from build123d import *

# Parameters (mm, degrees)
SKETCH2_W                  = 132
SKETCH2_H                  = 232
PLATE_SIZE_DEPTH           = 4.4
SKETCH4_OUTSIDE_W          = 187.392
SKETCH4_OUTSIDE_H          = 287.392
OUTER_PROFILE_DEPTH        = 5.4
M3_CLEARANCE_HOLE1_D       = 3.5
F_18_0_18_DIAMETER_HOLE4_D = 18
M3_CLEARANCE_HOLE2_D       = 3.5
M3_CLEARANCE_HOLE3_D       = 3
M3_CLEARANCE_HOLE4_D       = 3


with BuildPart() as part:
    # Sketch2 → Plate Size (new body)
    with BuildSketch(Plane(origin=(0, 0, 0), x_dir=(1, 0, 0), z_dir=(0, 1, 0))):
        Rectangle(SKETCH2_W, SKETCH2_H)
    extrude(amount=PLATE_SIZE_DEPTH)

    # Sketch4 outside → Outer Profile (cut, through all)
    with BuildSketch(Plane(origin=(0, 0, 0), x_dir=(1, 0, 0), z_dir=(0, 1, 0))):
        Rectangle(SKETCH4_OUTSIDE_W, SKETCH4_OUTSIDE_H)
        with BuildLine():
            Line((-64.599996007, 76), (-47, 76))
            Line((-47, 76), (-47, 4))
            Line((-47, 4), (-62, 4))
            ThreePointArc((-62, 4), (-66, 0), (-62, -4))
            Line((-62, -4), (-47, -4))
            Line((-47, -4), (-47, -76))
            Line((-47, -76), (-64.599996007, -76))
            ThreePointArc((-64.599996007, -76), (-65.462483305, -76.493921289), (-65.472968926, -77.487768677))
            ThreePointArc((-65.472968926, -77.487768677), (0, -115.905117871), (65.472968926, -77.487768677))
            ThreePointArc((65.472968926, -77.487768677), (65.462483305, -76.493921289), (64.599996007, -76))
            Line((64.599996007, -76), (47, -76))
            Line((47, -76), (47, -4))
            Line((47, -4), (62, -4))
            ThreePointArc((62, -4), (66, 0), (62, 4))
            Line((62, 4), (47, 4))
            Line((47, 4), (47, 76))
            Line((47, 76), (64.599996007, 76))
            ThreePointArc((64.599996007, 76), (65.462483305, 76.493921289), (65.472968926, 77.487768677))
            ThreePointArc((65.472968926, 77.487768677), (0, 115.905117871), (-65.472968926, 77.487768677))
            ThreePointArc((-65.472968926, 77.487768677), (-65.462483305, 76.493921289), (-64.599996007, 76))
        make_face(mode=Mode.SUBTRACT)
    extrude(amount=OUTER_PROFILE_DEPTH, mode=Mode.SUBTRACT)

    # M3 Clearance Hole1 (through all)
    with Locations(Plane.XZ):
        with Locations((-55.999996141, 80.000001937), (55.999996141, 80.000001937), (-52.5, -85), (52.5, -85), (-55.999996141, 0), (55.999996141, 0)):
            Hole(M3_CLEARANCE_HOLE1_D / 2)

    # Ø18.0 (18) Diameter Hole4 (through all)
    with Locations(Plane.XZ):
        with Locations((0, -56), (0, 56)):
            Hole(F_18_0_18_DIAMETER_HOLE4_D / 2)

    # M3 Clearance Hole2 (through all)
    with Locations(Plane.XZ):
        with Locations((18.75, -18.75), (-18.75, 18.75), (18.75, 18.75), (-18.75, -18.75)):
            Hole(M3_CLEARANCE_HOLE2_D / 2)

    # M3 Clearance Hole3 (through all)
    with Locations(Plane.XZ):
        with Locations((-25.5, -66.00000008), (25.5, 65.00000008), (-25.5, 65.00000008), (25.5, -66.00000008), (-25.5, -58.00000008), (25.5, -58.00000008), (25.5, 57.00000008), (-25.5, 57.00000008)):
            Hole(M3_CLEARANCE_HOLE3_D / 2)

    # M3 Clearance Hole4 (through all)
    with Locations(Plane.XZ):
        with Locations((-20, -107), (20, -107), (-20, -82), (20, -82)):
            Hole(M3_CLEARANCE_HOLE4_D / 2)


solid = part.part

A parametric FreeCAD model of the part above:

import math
import FreeCAD as App
import Part
import Sketcher
from FreeCAD import Vector
Q = App.Units.Quantity


def add_polygon(sketch, points):
    """Adds a closed chain of lines whose ends are joined by coincident constraints."""
    first, n = sketch.GeometryCount, len(points)
    for a, b in zip(points, points[1:] + points[:1]):
        sketch.addGeometry(Part.LineSegment(App.Vector(*a, 0), App.Vector(*b, 0)), False)
    for i in range(n):
        sketch.addConstraint(Sketcher.Constraint("Coincident", first + i, 2, first + (i + 1) % n, 1))

doc = App.newDocument("Part")
body = doc.addObject("PartDesign::Body", "Body")

sketch1 = doc.addObject("Sketcher::SketchObject", "Sketch")
body.addObject(sketch1)
sketch1.AttachmentSupport = (doc.XZ_Plane, [""])
sketch1.MapMode = "FlatFace"
add_polygon(sketch1, [(-66, -116), (-66, 116), (66, 116), (66, -116)])
sketch1.addConstraint(Sketcher.Constraint("Vertical", 0))
sketch1.addConstraint(Sketcher.Constraint("Horizontal", 1))
sketch1.addConstraint(Sketcher.Constraint("Vertical", 2))
sketch1.addConstraint(Sketcher.Constraint("Horizontal", 3))
sketch1.addConstraint(Sketcher.Constraint("Symmetric", 0, 2, 2, 2, -1, 1))
sketch1.addConstraint(Sketcher.Constraint("DistanceX", 1, 1, 1, 2, Q("132 mm")))
sketch1.addConstraint(Sketcher.Constraint("DistanceY", 0, 1, 0, 2, Q("232 mm")))
pad1 = doc.addObject("PartDesign::Pad", "Pad")
body.addObject(pad1)
pad1.Profile = sketch1
pad1.Length = 4.4
pad1.Reversed = True

sketch2 = doc.addObject("Sketcher::SketchObject", "Sketch001")
body.addObject(sketch2)
sketch2.AttachmentSupport = (doc.XZ_Plane, [""])
sketch2.MapMode = "FlatFace"
add_polygon(sketch2, [(-93.7, -143.7), (-93.7, 143.7), (93.7, 143.7), (93.7, -143.7)])
sketch2.addGeometry(Part.LineSegment(Vector(-47, -76, 0), Vector(-64.6, -76, 0)), False)
sketch2.addGeometry(Part.ArcOfCircle(Part.Circle(Vector(-64.6, -77, 0), Vector(0, 0, 1), 1), math.radians(90), math.radians(209)), False)
sketch2.addGeometry(Part.ArcOfCircle(Part.Circle(Vector(0, -40.9, 0), Vector(0, 0, 1), 75), math.radians(-151), math.radians(-29)), False)
sketch2.addGeometry(Part.ArcOfCircle(Part.Circle(Vector(64.6, -77, 0), Vector(0, 0, 1), 1), math.radians(-29), math.radians(90)), False)
sketch2.addGeometry(Part.LineSegment(Vector(64.6, -76, 0), Vector(47, -76, 0)), False)
sketch2.addGeometry(Part.LineSegment(Vector(47, -76, 0), Vector(47, -4, 0)), False)
sketch2.addGeometry(Part.LineSegment(Vector(47, -4, 0), Vector(62, -4, 0)), False)
sketch2.addGeometry(Part.ArcOfCircle(Part.Circle(Vector(62, 0, 0), Vector(0, 0, 1), 4), math.radians(-90), math.radians(90)), False)
sketch2.addGeometry(Part.LineSegment(Vector(62, 4, 0), Vector(47, 4, 0)), False)
sketch2.addGeometry(Part.LineSegment(Vector(47, 4, 0), Vector(47, 76, 0)), False)
sketch2.addGeometry(Part.LineSegment(Vector(47, 76, 0), Vector(64.6, 76, 0)), False)
sketch2.addGeometry(Part.ArcOfCircle(Part.Circle(Vector(64.6, 77, 0), Vector(0, 0, 1), 1), math.radians(-90), math.radians(29)), False)
sketch2.addGeometry(Part.ArcOfCircle(Part.Circle(Vector(0, 40.9, 0), Vector(0, 0, 1), 75), math.radians(29), math.radians(151)), False)
sketch2.addGeometry(Part.ArcOfCircle(Part.Circle(Vector(-64.6, 77, 0), Vector(0, 0, 1), 1), math.radians(151), math.radians(270)), False)
sketch2.addGeometry(Part.LineSegment(Vector(-64.6, 76, 0), Vector(-47, 76, 0)), False)
sketch2.addGeometry(Part.LineSegment(Vector(-47, 76, 0), Vector(-47, 4, 0)), False)
sketch2.addGeometry(Part.LineSegment(Vector(-47, 4, 0), Vector(-62, 4, 0)), False)
sketch2.addGeometry(Part.ArcOfCircle(Part.Circle(Vector(-62, 0, 0), Vector(0, 0, 1), 4), math.radians(90), math.radians(270)), False)
sketch2.addGeometry(Part.LineSegment(Vector(-62, -4, 0), Vector(-47, -4, 0)), False)
sketch2.addGeometry(Part.LineSegment(Vector(-47, -4, 0), Vector(-47, -76, 0)), False)
sketch2.addConstraint(Sketcher.Constraint("Tangent", 4, 2, 5, 1))
sketch2.addConstraint(Sketcher.Constraint("Tangent", 5, 2, 6, 1))
sketch2.addConstraint(Sketcher.Constraint("Tangent", 6, 2, 7, 1))
sketch2.addConstraint(Sketcher.Constraint("Tangent", 7, 2, 8, 1))
sketch2.addConstraint(Sketcher.Constraint("Coincident", 8, 2, 9, 1))
sketch2.addConstraint(Sketcher.Constraint("Coincident", 9, 2, 10, 1))
sketch2.addConstraint(Sketcher.Constraint("Tangent", 10, 2, 11, 1))
sketch2.addConstraint(Sketcher.Constraint("Tangent", 11, 2, 12, 1))
sketch2.addConstraint(Sketcher.Constraint("Coincident", 12, 2, 13, 1))
sketch2.addConstraint(Sketcher.Constraint("Coincident", 13, 2, 14, 1))
sketch2.addConstraint(Sketcher.Constraint("Tangent", 14, 2, 15, 1))
sketch2.addConstraint(Sketcher.Constraint("Tangent", 15, 2, 16, 1))
sketch2.addConstraint(Sketcher.Constraint("Tangent", 16, 2, 17, 1))
sketch2.addConstraint(Sketcher.Constraint("Tangent", 17, 2, 18, 1))
sketch2.addConstraint(Sketcher.Constraint("Coincident", 18, 2, 19, 1))
sketch2.addConstraint(Sketcher.Constraint("Coincident", 19, 2, 20, 1))
sketch2.addConstraint(Sketcher.Constraint("Tangent", 20, 2, 21, 1))
sketch2.addConstraint(Sketcher.Constraint("Tangent", 21, 2, 22, 1))
sketch2.addConstraint(Sketcher.Constraint("Coincident", 22, 2, 23, 1))
sketch2.addConstraint(Sketcher.Constraint("Coincident", 23, 2, 4, 1))
sketch2.addConstraint(Sketcher.Constraint("Vertical", 0))
sketch2.addConstraint(Sketcher.Constraint("Horizontal", 1))
sketch2.addConstraint(Sketcher.Constraint("Vertical", 2))
sketch2.addConstraint(Sketcher.Constraint("Horizontal", 3))
sketch2.addConstraint(Sketcher.Constraint("Horizontal", 4))
sketch2.addConstraint(Sketcher.Constraint("Horizontal", 8))
sketch2.addConstraint(Sketcher.Constraint("Vertical", 9))
sketch2.addConstraint(Sketcher.Constraint("Horizontal", 10))
sketch2.addConstraint(Sketcher.Constraint("Horizontal", 12))
sketch2.addConstraint(Sketcher.Constraint("Vertical", 13))
sketch2.addConstraint(Sketcher.Constraint("Horizontal", 14))
sketch2.addConstraint(Sketcher.Constraint("Horizontal", 18))
sketch2.addConstraint(Sketcher.Constraint("Vertical", 19))
sketch2.addConstraint(Sketcher.Constraint("Horizontal", 20))
sketch2.addConstraint(Sketcher.Constraint("Horizontal", 22))
sketch2.addConstraint(Sketcher.Constraint("Vertical", 23))
sketch2.addConstraint(Sketcher.Constraint("Equal", 5, 7))
sketch2.addConstraint(Sketcher.Constraint("Equal", 7, 15))
sketch2.addConstraint(Sketcher.Constraint("Equal", 6, 16))
sketch2.addConstraint(Sketcher.Constraint("Equal", 15, 17))
sketch2.addConstraint(Sketcher.Constraint("Equal", 11, 21))
sketch2.addConstraint(Sketcher.Constraint("Symmetric", 5, 3, 15, 3, -1, 1))
sketch2.addConstraint(Sketcher.Constraint("Symmetric", 7, 3, 17, 3, -1, 1))
sketch2.addConstraint(Sketcher.Constraint("Symmetric", 11, 3, 21, 3, -1, 1))
sketch2.addConstraint(Sketcher.Constraint("Symmetric", 0, 2, 2, 2, -1, 1))
sketch2.addConstraint(Sketcher.Constraint("Symmetric", 5, 3, 7, 3, -2))
sketch2.addConstraint(Sketcher.Constraint("Symmetric", 12, 2, 19, 2, -2))
sketch2.addConstraint(Sketcher.Constraint("Vertical", 9, 2, 12, 2))
sketch2.addConstraint(Sketcher.Constraint("Vertical", 19, 2, 22, 2))
sketch2.addConstraint(Sketcher.Constraint("Radius", 5, Q("1 mm")))
sketch2.addConstraint(Sketcher.Constraint("Radius", 6, Q("75 mm")))
sketch2.addConstraint(Sketcher.Constraint("Radius", 11, Q("4 mm")))
sketch2.addConstraint(Sketcher.Constraint("DistanceX", 10, 1, 10, 2, Q("15 mm")))
sketch2.addConstraint(Sketcher.Constraint("DistanceY", 9, 1, 9, 2, Q("72 mm")))
sketch2.addConstraint(Sketcher.Constraint("DistanceX", -1, 1, 11, 3, Q("62 mm")))
sketch2.addConstraint(Sketcher.Constraint("DistanceX", 1, 1, 1, 2, Q("187.392 mm")))
sketch2.addConstraint(Sketcher.Constraint("DistanceY", 0, 1, 0, 2, Q("287.392 mm")))
sketch2.addConstraint(Sketcher.Constraint("DistanceX", 4, 2, 4, 1, Q("17.599996 mm")))
pocket1 = doc.addObject("PartDesign::Pocket", "Pocket")
body.addObject(pocket1)
pocket1.Profile = sketch2
pocket1.Type = "ThroughAll"

sketch3 = doc.addObject("Sketcher::SketchObject", "Sketch002")
body.addObject(sketch3)
sketch3.AttachmentSupport = (doc.XZ_Plane, [""])
sketch3.MapMode = "FlatFace"
sketch3.addGeometry(Part.Circle(Vector(-56, 80, 0), Vector(0, 0, 1), 1.8), False)
sketch3.addGeometry(Part.Circle(Vector(56, 80, 0), Vector(0, 0, 1), 1.8), False)
sketch3.addGeometry(Part.Circle(Vector(-52.5, -85, 0), Vector(0, 0, 1), 1.8), False)
sketch3.addGeometry(Part.Circle(Vector(52.5, -85, 0), Vector(0, 0, 1), 1.8), False)
sketch3.addGeometry(Part.Circle(Vector(-56, 0, 0), Vector(0, 0, 1), 1.8), False)
sketch3.addGeometry(Part.Circle(Vector(56, 0, 0), Vector(0, 0, 1), 1.8), False)
sketch3.addConstraint(Sketcher.Constraint("Equal", 0, 1))
sketch3.addConstraint(Sketcher.Constraint("Equal", 1, 2))
sketch3.addConstraint(Sketcher.Constraint("Equal", 2, 3))
sketch3.addConstraint(Sketcher.Constraint("Equal", 3, 4))
sketch3.addConstraint(Sketcher.Constraint("Equal", 4, 5))
sketch3.addConstraint(Sketcher.Constraint("Symmetric", 4, 3, 5, 3, -1, 1))
sketch3.addConstraint(Sketcher.Constraint("Symmetric", 0, 3, 1, 3, -2))
sketch3.addConstraint(Sketcher.Constraint("Symmetric", 2, 3, 3, 3, -2))
sketch3.addConstraint(Sketcher.Constraint("PointOnObject", 4, 3, -1))
sketch3.addConstraint(Sketcher.Constraint("Vertical", 0, 3, 4, 3))
sketch3.addConstraint(Sketcher.Constraint("Diameter", 0, Q("3.5 mm")))
sketch3.addConstraint(Sketcher.Constraint("DistanceY", -1, 1, 0, 3, Q("80.000002 mm")))
sketch3.addConstraint(Sketcher.Constraint("DistanceY", 2, 3, -1, 1, Q("85 mm")))
sketch3.addConstraint(Sketcher.Constraint("DistanceX", 2, 3, 3, 3, Q("105 mm")))
sketch3.addConstraint(Sketcher.Constraint("DistanceX", 0, 3, -1, 1, Q("55.999996 mm")))
doc.recompute()
hole = doc.addObject("PartDesign::Hole", "Hole")
body.addObject(hole)
hole.Profile = sketch3
hole.ThreadType = "None"
hole.Diameter = 3.5
hole.DepthType = "ThroughAll"

sketch4 = doc.addObject("Sketcher::SketchObject", "Sketch003")
body.addObject(sketch4)
sketch4.AttachmentSupport = (doc.XZ_Plane, [""])
sketch4.MapMode = "FlatFace"
sketch4.addGeometry(Part.Circle(Vector(0, -56, 0), Vector(0, 0, 1), 9), False)
sketch4.addGeometry(Part.Circle(Vector(0, 56, 0), Vector(0, 0, 1), 9), False)
sketch4.addConstraint(Sketcher.Constraint("Equal", 0, 1))
sketch4.addConstraint(Sketcher.Constraint("Symmetric", 0, 3, 1, 3, -1, 1))
sketch4.addConstraint(Sketcher.Constraint("PointOnObject", 0, 3, -2))
sketch4.addConstraint(Sketcher.Constraint("Diameter", 0, Q("18 mm")))
sketch4.addConstraint(Sketcher.Constraint("DistanceY", 0, 3, -1, 1, Q("56 mm")))
doc.recompute()
hole2 = doc.addObject("PartDesign::Hole", "Hole001")
body.addObject(hole2)
hole2.Profile = sketch4
hole2.ThreadType = "None"
hole2.Diameter = 18
hole2.DepthType = "ThroughAll"

sketch5 = doc.addObject("Sketcher::SketchObject", "Sketch004")
body.addObject(sketch5)
sketch5.AttachmentSupport = (doc.XZ_Plane, [""])
sketch5.MapMode = "FlatFace"
sketch5.addGeometry(Part.Circle(Vector(18.8, -18.8, 0), Vector(0, 0, 1), 1.8), False)
sketch5.addGeometry(Part.Circle(Vector(-18.8, 18.8, 0), Vector(0, 0, 1), 1.8), False)
sketch5.addGeometry(Part.Circle(Vector(18.8, 18.8, 0), Vector(0, 0, 1), 1.8), False)
sketch5.addGeometry(Part.Circle(Vector(-18.8, -18.8, 0), Vector(0, 0, 1), 1.8), False)
sketch5.addConstraint(Sketcher.Constraint("Equal", 0, 1))
sketch5.addConstraint(Sketcher.Constraint("Equal", 1, 2))
sketch5.addConstraint(Sketcher.Constraint("Equal", 2, 3))
sketch5.addConstraint(Sketcher.Constraint("Symmetric", 0, 3, 1, 3, -1, 1))
sketch5.addConstraint(Sketcher.Constraint("Symmetric", 2, 3, 3, 3, -1, 1))
sketch5.addConstraint(Sketcher.Constraint("Symmetric", 1, 3, 2, 3, -2))
sketch5.addConstraint(Sketcher.Constraint("Diameter", 0, Q("3.5 mm")))
sketch5.addConstraint(Sketcher.Constraint("DistanceX", 1, 3, 0, 3, Q("37.5 mm")))
sketch5.addConstraint(Sketcher.Constraint("DistanceY", 0, 3, 1, 3, Q("37.5 mm")))
doc.recompute()
hole3 = doc.addObject("PartDesign::Hole", "Hole002")
body.addObject(hole3)
hole3.Profile = sketch5
hole3.ThreadType = "None"
hole3.Diameter = 3.5
hole3.DepthType = "ThroughAll"

sketch6 = doc.addObject("Sketcher::SketchObject", "Sketch005")
body.addObject(sketch6)
sketch6.AttachmentSupport = (doc.XZ_Plane, [""])
sketch6.MapMode = "FlatFace"
sketch6.addGeometry(Part.Circle(Vector(-25.5, -66, 0), Vector(0, 0, 1), 1.5), False)
sketch6.addGeometry(Part.Circle(Vector(25.5, 65, 0), Vector(0, 0, 1), 1.5), False)
sketch6.addGeometry(Part.Circle(Vector(-25.5, 65, 0), Vector(0, 0, 1), 1.5), False)
sketch6.addGeometry(Part.Circle(Vector(25.5, -66, 0), Vector(0, 0, 1), 1.5), False)
sketch6.addGeometry(Part.Circle(Vector(-25.5, -58, 0), Vector(0, 0, 1), 1.5), False)
sketch6.addGeometry(Part.Circle(Vector(25.5, -58, 0), Vector(0, 0, 1), 1.5), False)
sketch6.addGeometry(Part.Circle(Vector(25.5, 57, 0), Vector(0, 0, 1), 1.5), False)
sketch6.addGeometry(Part.Circle(Vector(-25.5, 57, 0), Vector(0, 0, 1), 1.5), False)
sketch6.addConstraint(Sketcher.Constraint("Equal", 0, 1))
sketch6.addConstraint(Sketcher.Constraint("Equal", 1, 2))
sketch6.addConstraint(Sketcher.Constraint("Equal", 2, 3))
sketch6.addConstraint(Sketcher.Constraint("Equal", 3, 4))
sketch6.addConstraint(Sketcher.Constraint("Equal", 4, 5))
sketch6.addConstraint(Sketcher.Constraint("Equal", 5, 6))
sketch6.addConstraint(Sketcher.Constraint("Equal", 6, 7))
sketch6.addConstraint(Sketcher.Constraint("Symmetric", 1, 3, 2, 3, -2))
sketch6.addConstraint(Sketcher.Constraint("Symmetric", 0, 3, 3, 3, -2))
sketch6.addConstraint(Sketcher.Constraint("Symmetric", 4, 3, 5, 3, -2))
sketch6.addConstraint(Sketcher.Constraint("Symmetric", 6, 3, 7, 3, -2))
sketch6.addConstraint(Sketcher.Constraint("Vertical", 0, 3, 2, 3))
sketch6.addConstraint(Sketcher.Constraint("Vertical", 2, 3, 4, 3))
sketch6.addConstraint(Sketcher.Constraint("Vertical", 5, 3, 6, 3))
sketch6.addConstraint(Sketcher.Constraint("Diameter", 0, Q("3 mm")))
sketch6.addConstraint(Sketcher.Constraint("DistanceY", 0, 3, -1, 1, Q("66 mm")))
sketch6.addConstraint(Sketcher.Constraint("DistanceY", -1, 1, 1, 3, Q("65 mm")))
sketch6.addConstraint(Sketcher.Constraint("DistanceY", 4, 3, -1, 1, Q("58 mm")))
sketch6.addConstraint(Sketcher.Constraint("DistanceY", -1, 1, 6, 3, Q("57 mm")))
sketch6.addConstraint(Sketcher.Constraint("DistanceX", 0, 3, 1, 3, Q("51 mm")))
doc.recompute()
hole4 = doc.addObject("PartDesign::Hole", "Hole003")
body.addObject(hole4)
hole4.Profile = sketch6
hole4.ThreadType = "None"
hole4.Diameter = 3
hole4.DepthType = "ThroughAll"

sketch7 = doc.addObject("Sketcher::SketchObject", "Sketch006")
body.addObject(sketch7)
sketch7.AttachmentSupport = (doc.XZ_Plane, [""])
sketch7.MapMode = "FlatFace"
sketch7.addGeometry(Part.Circle(Vector(-20, -107, 0), Vector(0, 0, 1), 1.5), False)
sketch7.addGeometry(Part.Circle(Vector(20, -107, 0), Vector(0, 0, 1), 1.5), False)
sketch7.addGeometry(Part.Circle(Vector(-20, -82, 0), Vector(0, 0, 1), 1.5), False)
sketch7.addGeometry(Part.Circle(Vector(20, -82, 0), Vector(0, 0, 1), 1.5), False)
sketch7.addConstraint(Sketcher.Constraint("Equal", 0, 1))
sketch7.addConstraint(Sketcher.Constraint("Equal", 1, 2))
sketch7.addConstraint(Sketcher.Constraint("Equal", 2, 3))
sketch7.addConstraint(Sketcher.Constraint("Symmetric", 0, 3, 1, 3, -2))
sketch7.addConstraint(Sketcher.Constraint("Symmetric", 2, 3, 3, 3, -2))
sketch7.addConstraint(Sketcher.Constraint("Vertical", 0, 3, 2, 3))
sketch7.addConstraint(Sketcher.Constraint("Diameter", 0, Q("3 mm")))
sketch7.addConstraint(Sketcher.Constraint("DistanceX", 0, 3, -1, 1, Q("20 mm")))
sketch7.addConstraint(Sketcher.Constraint("DistanceY", 0, 3, -1, 1, Q("107 mm")))
sketch7.addConstraint(Sketcher.Constraint("DistanceY", 2, 3, -1, 1, Q("82 mm")))
doc.recompute()
hole5 = doc.addObject("PartDesign::Hole", "Hole004")
body.addObject(hole5)
hole5.Profile = sketch7
hole5.ThreadType = "None"
hole5.Diameter = 3
hole5.DepthType = "ThroughAll"

doc.recompute()
